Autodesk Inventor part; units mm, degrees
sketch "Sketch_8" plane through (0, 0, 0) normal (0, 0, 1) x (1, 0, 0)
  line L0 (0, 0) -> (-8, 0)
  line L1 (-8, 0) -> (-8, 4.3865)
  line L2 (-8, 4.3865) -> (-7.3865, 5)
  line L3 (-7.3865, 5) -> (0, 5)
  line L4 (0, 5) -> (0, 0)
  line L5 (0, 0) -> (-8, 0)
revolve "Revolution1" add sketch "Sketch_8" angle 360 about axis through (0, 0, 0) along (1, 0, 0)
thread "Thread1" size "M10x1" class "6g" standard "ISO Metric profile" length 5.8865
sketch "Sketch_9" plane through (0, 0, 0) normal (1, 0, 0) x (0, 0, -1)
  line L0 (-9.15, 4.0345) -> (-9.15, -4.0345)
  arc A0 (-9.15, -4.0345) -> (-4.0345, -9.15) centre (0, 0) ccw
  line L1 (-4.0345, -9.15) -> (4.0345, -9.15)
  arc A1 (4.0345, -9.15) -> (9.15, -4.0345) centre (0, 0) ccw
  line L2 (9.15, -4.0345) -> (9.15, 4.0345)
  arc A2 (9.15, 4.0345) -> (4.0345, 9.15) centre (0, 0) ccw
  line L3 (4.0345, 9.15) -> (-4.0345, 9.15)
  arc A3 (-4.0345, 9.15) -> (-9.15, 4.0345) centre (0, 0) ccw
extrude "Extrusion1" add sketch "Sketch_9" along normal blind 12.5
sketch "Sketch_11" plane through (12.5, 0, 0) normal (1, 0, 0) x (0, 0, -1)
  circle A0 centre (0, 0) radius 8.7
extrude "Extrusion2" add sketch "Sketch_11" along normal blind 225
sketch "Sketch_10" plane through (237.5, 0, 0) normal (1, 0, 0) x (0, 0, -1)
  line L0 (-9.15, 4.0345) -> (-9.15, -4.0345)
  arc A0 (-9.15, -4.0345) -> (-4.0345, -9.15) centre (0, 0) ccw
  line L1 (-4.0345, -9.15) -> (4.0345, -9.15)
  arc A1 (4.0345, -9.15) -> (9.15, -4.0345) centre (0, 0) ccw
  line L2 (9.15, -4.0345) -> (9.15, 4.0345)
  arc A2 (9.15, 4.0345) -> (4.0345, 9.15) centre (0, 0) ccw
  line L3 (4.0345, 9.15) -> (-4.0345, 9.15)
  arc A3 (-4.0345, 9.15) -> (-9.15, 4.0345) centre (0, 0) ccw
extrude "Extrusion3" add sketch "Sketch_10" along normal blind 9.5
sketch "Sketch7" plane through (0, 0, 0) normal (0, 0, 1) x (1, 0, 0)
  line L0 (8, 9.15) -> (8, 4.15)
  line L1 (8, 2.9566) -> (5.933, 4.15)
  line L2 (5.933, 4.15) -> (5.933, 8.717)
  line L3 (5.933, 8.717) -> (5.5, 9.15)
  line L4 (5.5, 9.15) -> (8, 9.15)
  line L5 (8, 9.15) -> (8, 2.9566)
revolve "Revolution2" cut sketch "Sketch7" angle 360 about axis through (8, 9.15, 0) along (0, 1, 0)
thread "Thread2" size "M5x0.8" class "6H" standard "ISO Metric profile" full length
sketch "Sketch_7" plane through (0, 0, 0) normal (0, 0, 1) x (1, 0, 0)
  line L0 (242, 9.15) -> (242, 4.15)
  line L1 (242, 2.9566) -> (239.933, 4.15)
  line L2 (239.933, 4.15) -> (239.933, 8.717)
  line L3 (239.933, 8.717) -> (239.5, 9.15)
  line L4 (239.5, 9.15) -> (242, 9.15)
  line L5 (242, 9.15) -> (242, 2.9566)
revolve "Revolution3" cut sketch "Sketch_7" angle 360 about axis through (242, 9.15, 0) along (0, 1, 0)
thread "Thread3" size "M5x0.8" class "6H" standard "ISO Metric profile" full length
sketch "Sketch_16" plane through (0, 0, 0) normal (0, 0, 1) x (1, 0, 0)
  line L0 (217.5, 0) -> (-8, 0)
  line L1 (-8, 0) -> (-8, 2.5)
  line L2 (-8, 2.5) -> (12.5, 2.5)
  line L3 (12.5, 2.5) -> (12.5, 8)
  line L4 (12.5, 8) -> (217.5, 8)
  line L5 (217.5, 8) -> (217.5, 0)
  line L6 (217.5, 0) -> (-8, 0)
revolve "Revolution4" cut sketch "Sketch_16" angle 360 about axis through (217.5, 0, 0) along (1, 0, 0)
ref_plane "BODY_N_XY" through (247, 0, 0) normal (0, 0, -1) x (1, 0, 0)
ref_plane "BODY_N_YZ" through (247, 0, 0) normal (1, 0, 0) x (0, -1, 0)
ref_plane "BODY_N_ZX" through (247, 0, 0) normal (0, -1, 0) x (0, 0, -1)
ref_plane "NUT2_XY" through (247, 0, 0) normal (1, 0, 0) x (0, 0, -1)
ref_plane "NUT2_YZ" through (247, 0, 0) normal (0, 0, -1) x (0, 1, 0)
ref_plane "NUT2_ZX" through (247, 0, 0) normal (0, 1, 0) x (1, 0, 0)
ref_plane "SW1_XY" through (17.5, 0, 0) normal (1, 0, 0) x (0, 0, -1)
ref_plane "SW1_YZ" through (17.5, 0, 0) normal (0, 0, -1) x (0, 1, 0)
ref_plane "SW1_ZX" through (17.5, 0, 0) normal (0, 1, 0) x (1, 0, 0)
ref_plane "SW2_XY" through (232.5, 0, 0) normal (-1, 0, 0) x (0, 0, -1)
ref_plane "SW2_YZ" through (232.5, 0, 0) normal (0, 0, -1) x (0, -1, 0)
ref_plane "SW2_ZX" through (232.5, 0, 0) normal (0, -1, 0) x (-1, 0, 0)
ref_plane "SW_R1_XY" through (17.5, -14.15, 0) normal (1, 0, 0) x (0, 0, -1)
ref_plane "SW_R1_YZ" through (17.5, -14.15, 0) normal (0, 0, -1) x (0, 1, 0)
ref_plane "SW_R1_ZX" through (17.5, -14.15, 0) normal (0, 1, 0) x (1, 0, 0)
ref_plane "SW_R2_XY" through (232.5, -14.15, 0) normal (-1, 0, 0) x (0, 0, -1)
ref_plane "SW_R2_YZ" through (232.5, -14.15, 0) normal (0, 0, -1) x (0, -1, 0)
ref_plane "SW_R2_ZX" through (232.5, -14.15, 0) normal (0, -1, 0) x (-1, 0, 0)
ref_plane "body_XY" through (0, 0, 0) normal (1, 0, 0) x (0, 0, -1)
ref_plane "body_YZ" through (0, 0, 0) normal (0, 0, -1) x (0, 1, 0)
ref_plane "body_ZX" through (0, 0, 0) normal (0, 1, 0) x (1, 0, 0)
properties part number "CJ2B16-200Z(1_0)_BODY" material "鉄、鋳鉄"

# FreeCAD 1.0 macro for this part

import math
import FreeCAD as App
import Part
import Sketcher

V = App.Vector
Q = App.Units.Quantity

doc = App.newDocument("Part")
body = doc.addObject("PartDesign::Body", "Body")

# Sketch on XY plane
sketch1 = body.newObject("Sketcher::SketchObject", "Sketch")
sketch1.AttachmentSupport = (doc.getObject("XY_Plane"), [""])
sketch1.MapMode = "FlatFace"
sketch1.addGeometry(Part.LineSegment(V(-8, 0, 0), V(0, 0, 0)), False)
sketch1.addGeometry(Part.LineSegment(V(0, 0, 0), V(0, 5, 0)), False)
sketch1.addGeometry(Part.LineSegment(V(0, 5, 0), V(-7.4, 5, 0)), False)
sketch1.addGeometry(Part.LineSegment(V(-7.4, 5, 0), V(-8, 4.4, 0)), False)
sketch1.addGeometry(Part.LineSegment(V(-8, 4.4, 0), V(-8, 0, 0)), False)
sketch1.addConstraint(Sketcher.Constraint("Coincident", 0, 2, 1, 1))
sketch1.addConstraint(Sketcher.Constraint("Coincident", 1, 2, 2, 1))
sketch1.addConstraint(Sketcher.Constraint("Coincident", 2, 2, 3, 1))
sketch1.addConstraint(Sketcher.Constraint("Coincident", 3, 2, 4, 1))
sketch1.addConstraint(Sketcher.Constraint("Coincident", 4, 2, 0, 1))
sketch1.addConstraint(Sketcher.Constraint("Horizontal", 0))
sketch1.addConstraint(Sketcher.Constraint("Vertical", 1))
sketch1.addConstraint(Sketcher.Constraint("Horizontal", 2))
sketch1.addConstraint(Sketcher.Constraint("Vertical", 4))
sketch1.addConstraint(Sketcher.Constraint("Coincident", 0, 2, -1, 1))
sketch1.addConstraint(Sketcher.Constraint("DistanceX", 0, 1, 0, 2, Q("8 mm")))
sketch1.addConstraint(Sketcher.Constraint("DistanceY", 1, 1, 1, 2, Q("5 mm")))
sketch1.addConstraint(Sketcher.Constraint("Angle", 3, Q("-135 deg")))
sketch1.addConstraint(Sketcher.Constraint("DistanceX", 2, 2, 2, 1, Q("7.3865 mm")))
revolution = body.newObject("PartDesign::Revolution", "Revolution")
revolution.Profile = sketch1
revolution.ReferenceAxis = (sketch1, ["H_Axis"])
revolution.Angle = 360

# Sketch on YZ plane
sketch2 = body.newObject("Sketcher::SketchObject", "Sketch001")
sketch2.AttachmentSupport = (doc.getObject("YZ_Plane"), [""])
sketch2.MapMode = "FlatFace"
sketch2.addGeometry(Part.ArcOfCircle(Part.Circle(V(0, 0, 0), V(0, 0, 1), 10), math.radians(24), math.radians(66)), False)
sketch2.addGeometry(Part.LineSegment(V(4, 9, 0), V(-4, 9, 0)), False)
sketch2.addGeometry(Part.ArcOfCircle(Part.Circle(V(0, 0, 0), V(0, 0, 1), 10), math.radians(114), math.radians(156)), False)
sketch2.addGeometry(Part.LineSegment(V(-9, 4, 0), V(-9, -4, 0)), False)
sketch2.addGeometry(Part.ArcOfCircle(Part.Circle(V(0, 0, 0), V(0, 0, 1), 10), math.radians(-156), math.radians(-114)), False)
sketch2.addGeometry(Part.LineSegment(V(-4, -9, 0), V(4, -9, 0)), False)
sketch2.addGeometry(Part.ArcOfCircle(Part.Circle(V(0, 0, 0), V(0, 0, 1), 10), math.radians(-66), math.radians(-24)), False)
sketch2.addGeometry(Part.LineSegment(V(9, -4, 0), V(9, 4, 0)), False)
sketch2.addConstraint(Sketcher.Constraint("Coincident", 0, 2, 1, 1))
sketch2.addConstraint(Sketcher.Constraint("Coincident", 1, 2, 2, 1))
sketch2.addConstraint(Sketcher.Constraint("Coincident", 2, 2, 3, 1))
sketch2.addConstraint(Sketcher.Constraint("Coincident", 3, 2, 4, 1))
sketch2.addConstraint(Sketcher.Constraint("Coincident", 4, 2, 5, 1))
sketch2.addConstraint(Sketcher.Constraint("Coincident", 5, 2, 6, 1))
sketch2.addConstraint(Sketcher.Constraint("Coincident", 6, 2, 7, 1))
sketch2.addConstraint(Sketcher.Constraint("Coincident", 7, 2, 0, 1))
sketch2.addConstraint(Sketcher.Constraint("Horizontal", 1))
sketch2.addConstraint(Sketcher.Constraint("Vertical", 3))
sketch2.addConstraint(Sketcher.Constraint("Horizontal", 5))
sketch2.addConstraint(Sketcher.Constraint("Vertical", 7))
sketch2.addConstraint(Sketcher.Constraint("Coincident", 0, 3, -1, 1))
sketch2.addConstraint(Sketcher.Constraint("Coincident", 2, 3, -1, 1))
sketch2.addConstraint(Sketcher.Constraint("Coincident", 4, 3, -1, 1))
sketch2.addConstraint(Sketcher.Constraint("Coincident", 6, 3, -1, 1))
sketch2.addConstraint(Sketcher.Constraint("Equal", 0, 2))
sketch2.addConstraint(Sketcher.Constraint("Equal", 2, 4))
sketch2.addConstraint(Sketcher.Constraint("Equal", 4, 6))
sketch2.addConstraint(Sketcher.Constraint("Horizontal", 3, 2, 6, 2))
sketch2.addConstraint(Sketcher.Constraint("Vertical", 1, 2, 4, 2))
sketch2.addConstraint(Sketcher.Constraint("Equal", 5, 3))
sketch2.addConstraint(Sketcher.Constraint("Radius", 0, Q("10 mm")))
sketch2.addConstraint(Sketcher.Constraint("DistanceX", 1, 2, 1, 1, Q("8.069 mm")))
pad1 = body.newObject("PartDesign::Pad", "Pad")
pad1.Profile = sketch2
pad1.Length = 12.5

# Sketch on YZ plane
sketch3 = body.newObject("Sketcher::SketchObject", "Sketch002")
sketch3.AttachmentSupport = (doc.getObject("YZ_Plane"), [""])
sketch3.MapMode = "FlatFace"
sketch3.AttachmentOffset = App.Placement(V(0, 0, 12.5), App.Rotation())
sketch3.addGeometry(Part.Circle(V(0, 0, 0), V(0, 0, 1), 9), False)
sketch3.addConstraint(Sketcher.Constraint("Coincident", 0, 3, -1, 1))
sketch3.addConstraint(Sketcher.Constraint("Diameter", 0, Q("17.4 mm")))
pad2 = body.newObject("PartDesign::Pad", "Pad001")
pad2.Profile = sketch3
pad2.Length = 225

# Sketch on YZ plane
sketch4 = body.newObject("Sketcher::SketchObject", "Sketch003")
sketch4.AttachmentSupport = (doc.getObject("YZ_Plane"), [""])
sketch4.MapMode = "FlatFace"
sketch4.AttachmentOffset = App.Placement(V(0, 0, 237.5), App.Rotation())
sketch4.addGeometry(Part.ArcOfCircle(Part.Circle(V(0, 0, 0), V(0, 0, 1), 10), math.radians(24), math.radians(66)), False)
sketch4.addGeometry(Part.LineSegment(V(4, 9, 0), V(-4, 9, 0)), False)
sketch4.addGeometry(Part.ArcOfCircle(Part.Circle(V(0, 0, 0), V(0, 0, 1), 10), math.radians(114), math.radians(156)), False)
sketch4.addGeometry(Part.LineSegment(V(-9, 4, 0), V(-9, -4, 0)), False)
sketch4.addGeometry(Part.ArcOfCircle(Part.Circle(V(0, 0, 0), V(0, 0, 1), 10), math.radians(-156), math.radians(-114)), False)
sketch4.addGeometry(Part.LineSegment(V(-4, -9, 0), V(4, -9, 0)), False)
sketch4.addGeometry(Part.ArcOfCircle(Part.Circle(V(0, 0, 0), V(0, 0, 1), 10), math.radians(-66), math.radians(-24)), False)
sketch4.addGeometry(Part.LineSegment(V(9, -4, 0), V(9, 4, 0)), False)
sketch4.addConstraint(Sketcher.Constraint("Coincident", 0, 2, 1, 1))
sketch4.addConstraint(Sketcher.Constraint("Coincident", 1, 2, 2, 1))
sketch4.addConstraint(Sketcher.Constraint("Coincident", 2, 2, 3, 1))
sketch4.addConstraint(Sketcher.Constraint("Coincident", 3, 2, 4, 1))
sketch4.addConstraint(Sketcher.Constraint("Coincident", 4, 2, 5, 1))
sketch4.addConstraint(Sketcher.Constraint("Coincident", 5, 2, 6, 1))
sketch4.addConstraint(Sketcher.Constraint("Coincident", 6, 2, 7, 1))
sketch4.addConstraint(Sketcher.Constraint("Coincident", 7, 2, 0, 1))
sketch4.addConstraint(Sketcher.Constraint("Horizontal", 1))
sketch4.addConstraint(Sketcher.Constraint("Vertical", 3))
sketch4.addConstraint(Sketcher.Constraint("Horizontal", 5))
sketch4.addConstraint(Sketcher.Constraint("Vertical", 7))
sketch4.addConstraint(Sketcher.Constraint("Coincident", 0, 3, -1, 1))
sketch4.addConstraint(Sketcher.Constraint("Coincident", 2, 3, -1, 1))
sketch4.addConstraint(Sketcher.Constraint("Coincident", 4, 3, -1, 1))
sketch4.addConstraint(Sketcher.Constraint("Coincident", 6, 3, -1, 1))
sketch4.addConstraint(Sketcher.Constraint("Equal", 0, 2))
sketch4.addConstraint(Sketcher.Constraint("Equal", 2, 4))
sketch4.addConstraint(Sketcher.Constraint("Equal", 4, 6))
sketch4.addConstraint(Sketcher.Constraint("Horizontal", 3, 2, 6, 2))
sketch4.addConstraint(Sketcher.Constraint("Vertical", 1, 2, 4, 2))
sketch4.addConstraint(Sketcher.Constraint("Equal", 5, 3))
sketch4.addConstraint(Sketcher.Constraint("Radius", 0, Q("10 mm")))
sketch4.addConstraint(Sketcher.Constraint("DistanceX", 1, 2, 1, 1, Q("8.069 mm")))
pad3 = body.newObject("PartDesign::Pad", "Pad002")
pad3.Profile = sketch4
pad3.Length = 9.5

# Sketch on XY plane
sketch5 = body.newObject("Sketcher::SketchObject", "Sketch004")
sketch5.AttachmentSupport = (doc.getObject("XY_Plane"), [""])
sketch5.MapMode = "FlatFace"
sketch5.addGeometry(Part.LineSegment(V(8, 3, 0), V(8, 9.2, 0)), False)
sketch5.addGeometry(Part.LineSegment(V(8, 9.2, 0), V(5.5, 9.2, 0)), False)
sketch5.addGeometry(Part.LineSegment(V(5.5, 9.2, 0), V(5.9, 8.7, 0)), False)
sketch5.addGeometry(Part.LineSegment(V(5.9, 8.7, 0), V(5.9, 4.2, 0)), False)
sketch5.addGeometry(Part.LineSegment(V(5.9, 4.2, 0), V(8, 3, 0)), False)
sketch5.addGeometry(Part.LineSegment(V(8, 3, 0), V(8, 9.2, 0)), True)  # axis
sketch5.addConstraint(Sketcher.Constraint("Coincident", 0, 2, 1, 1))
sketch5.addConstraint(Sketcher.Constraint("Coincident", 1, 2, 2, 1))
sketch5.addConstraint(Sketcher.Constraint("Coincident", 2, 2, 3, 1))
sketch5.addConstraint(Sketcher.Constraint("Coincident", 3, 2, 4, 1))
sketch5.addConstraint(Sketcher.Constraint("Coincident", 4, 2, 0, 1))
sketch5.addConstraint(Sketcher.Constraint("Vertical", 0))
sketch5.addConstraint(Sketcher.Constraint("Horizontal", 1))
sketch5.addConstraint(Sketcher.Constraint("Vertical", 3))
sketch5.addConstraint(Sketcher.Constraint("Vertical", 5))
sketch5.addConstraint(Sketcher.Constraint("Coincident", 5, 1, 4, 2))
sketch5.addConstraint(Sketcher.Constraint("Horizontal", 1, 2, 5, 2))
sketch5.addConstraint(Sketcher.Constraint("Angle", 2, Q("-45 deg")))
sketch5.addConstraint(Sketcher.Constraint("Angle", 4, Q("-30.0004 deg")))
sketch5.addConstraint(Sketcher.Constraint("DistanceX", 1, 2, 1, 1, Q("2.5 mm")))
sketch5.addConstraint(Sketcher.Constraint("DistanceX", -1, 1, 0, 2, Q("8 mm")))
sketch5.addConstraint(Sketcher.Constraint("DistanceY", 3, 2, 1, 2, Q("5 mm")))
sketch5.addConstraint(Sketcher.Constraint("DistanceY", 3, 2, 3, 1, Q("4.567 mm")))
sketch5.addConstraint(Sketcher.Constraint("DistanceY", -1, 1, 0, 2, Q("9.15 mm")))
groove = body.newObject("PartDesign::Groove", "Groove")
groove.Profile = sketch5
groove.ReferenceAxis = (sketch5, ["Axis0"])
groove.Angle = 360

# Sketch on XY plane
sketch6 = body.newObject("Sketcher::SketchObject", "Sketch005")
sketch6.AttachmentSupport = (doc.getObject("XY_Plane"), [""])
sketch6.MapMode = "FlatFace"
sketch6.addGeometry(Part.LineSegment(V(242, 3, 0), V(242, 9.2, 0)), False)
sketch6.addGeometry(Part.LineSegment(V(242, 9.2, 0), V(239.5, 9.2, 0)), False)
sketch6.addGeometry(Part.LineSegment(V(239.5, 9.2, 0), V(239.9, 8.7, 0)), False)
sketch6.addGeometry(Part.LineSegment(V(239.9, 8.7, 0), V(239.9, 4.2, 0)), False)
sketch6.addGeometry(Part.LineSegment(V(239.9, 4.2, 0), V(242, 3, 0)), False)
sketch6.addGeometry(Part.LineSegment(V(242, 3, 0), V(242, 9.2, 0)), True)  # axis
sketch6.addConstraint(Sketcher.Constraint("Coincident", 0, 2, 1, 1))
sketch6.addConstraint(Sketcher.Constraint("Coincident", 1, 2, 2, 1))
sketch6.addConstraint(Sketcher.Constraint("Coincident", 2, 2, 3, 1))
sketch6.addConstraint(Sketcher.Constraint("Coincident", 3, 2, 4, 1))
sketch6.addConstraint(Sketcher.Constraint("Coincident", 4, 2, 0, 1))
sketch6.addConstraint(Sketcher.Constraint("Vertical", 0))
sketch6.addConstraint(Sketcher.Constraint("Horizontal", 1))
sketch6.addConstraint(Sketcher.Constraint("Vertical", 3))
sketch6.addConstraint(Sketcher.Constraint("Vertical", 5))
sketch6.addConstraint(Sketcher.Constraint("Coincident", 5, 1, 4, 2))
sketch6.addConstraint(Sketcher.Constraint("Horizontal", 1, 2, 5, 2))
sketch6.addConstraint(Sketcher.Constraint("Angle", 2, Q("-45 deg")))
sketch6.addConstraint(Sketcher.Constraint("Angle", 4, Q("-30.0004 deg")))
sketch6.addConstraint(Sketcher.Constraint("DistanceX", 1, 2, 1, 1, Q("2.5 mm")))
sketch6.addConstraint(Sketcher.Constraint("DistanceX", -1, 1, 0, 2, Q("242 mm")))
sketch6.addConstraint(Sketcher.Constraint("DistanceY", 3, 2, 1, 2, Q("5 mm")))
sketch6.addConstraint(Sketcher.Constraint("DistanceY", 3, 2, 3, 1, Q("4.567 mm")))
sketch6.addConstraint(Sketcher.Constraint("DistanceY", -1, 1, 0, 2, Q("9.15 mm")))
groove2 = body.newObject("PartDesign::Groove", "Groove001")
groove2.Profile = sketch6
groove2.ReferenceAxis = (sketch6, ["Axis0"])
groove2.Angle = 360

# Sketch on XY plane
sketch7 = body.newObject("Sketcher::SketchObject", "Sketch006")
sketch7.AttachmentSupport = (doc.getObject("XY_Plane"), [""])
sketch7.MapMode = "FlatFace"
sketch7.addGeometry(Part.LineSegment(V(-8, 0, 0), V(217.5, 0, 0)), False)
sketch7.addGeometry(Part.LineSegment(V(217.5, 0, 0), V(217.5, 8, 0)), False)
sketch7.addGeometry(Part.LineSegment(V(217.5, 8, 0), V(12.5, 8, 0)), False)
sketch7.addGeometry(Part.LineSegment(V(12.5, 8, 0), V(12.5, 2.5, 0)), False)
sketch7.addGeometry(Part.LineSegment(V(12.5, 2.5, 0), V(-8, 2.5, 0)), False)
sketch7.addGeometry(Part.LineSegment(V(-8, 2.5, 0), V(-8, 0, 0)), False)
sketch7.addConstraint(Sketcher.Constraint("Coincident", 0, 2, 1, 1))
sketch7.addConstraint(Sketcher.Constraint("Coincident", 1, 2, 2, 1))
sketch7.addConstraint(Sketcher.Constraint("Coincident", 2, 2, 3, 1))
sketch7.addConstraint(Sketcher.Constraint("Coincident", 3, 2, 4, 1))
sketch7.addConstraint(Sketcher.Constraint("Coincident", 4, 2, 5, 1))
sketch7.addConstraint(Sketcher.Constraint("Coincident", 5, 2, 0, 1))
sketch7.addConstraint(Sketcher.Constraint("Horizontal", 0))
sketch7.addConstraint(Sketcher.Constraint("Vertical", 1))
sketch7.addConstraint(Sketcher.Constraint("Horizontal", 2))
sketch7.addConstraint(Sketcher.Constraint("Vertical", 3))
sketch7.addConstraint(Sketcher.Constraint("Horizontal", 4))
sketch7.addConstraint(Sketcher.Constraint("Vertical", 5))
sketch7.addConstraint(Sketcher.Constraint("PointOnObject", 0, 2, -1))
sketch7.addConstraint(Sketcher.Constraint("DistanceX", 2, 2, 2, 1, Q("205 mm")))
sketch7.addConstraint(Sketcher.Constraint("DistanceY", 1, 1, 1, 2, Q("8 mm")))
sketch7.addConstraint(Sketcher.Constraint("DistanceX", 0, 1, 0, 2, Q("225.5 mm")))
sketch7.addConstraint(Sketcher.Constraint("DistanceY", 3, 2, 3, 1, Q("5.5 mm")))
sketch7.addConstraint(Sketcher.Constraint("DistanceX", 4, 2, -1, 1, Q("8 mm")))
groove3 = body.newObject("PartDesign::Groove", "Groove002")
groove3.Profile = sketch7
groove3.ReferenceAxis = (sketch7, ["H_Axis"])
groove3.Angle = 360

doc.recompute()
